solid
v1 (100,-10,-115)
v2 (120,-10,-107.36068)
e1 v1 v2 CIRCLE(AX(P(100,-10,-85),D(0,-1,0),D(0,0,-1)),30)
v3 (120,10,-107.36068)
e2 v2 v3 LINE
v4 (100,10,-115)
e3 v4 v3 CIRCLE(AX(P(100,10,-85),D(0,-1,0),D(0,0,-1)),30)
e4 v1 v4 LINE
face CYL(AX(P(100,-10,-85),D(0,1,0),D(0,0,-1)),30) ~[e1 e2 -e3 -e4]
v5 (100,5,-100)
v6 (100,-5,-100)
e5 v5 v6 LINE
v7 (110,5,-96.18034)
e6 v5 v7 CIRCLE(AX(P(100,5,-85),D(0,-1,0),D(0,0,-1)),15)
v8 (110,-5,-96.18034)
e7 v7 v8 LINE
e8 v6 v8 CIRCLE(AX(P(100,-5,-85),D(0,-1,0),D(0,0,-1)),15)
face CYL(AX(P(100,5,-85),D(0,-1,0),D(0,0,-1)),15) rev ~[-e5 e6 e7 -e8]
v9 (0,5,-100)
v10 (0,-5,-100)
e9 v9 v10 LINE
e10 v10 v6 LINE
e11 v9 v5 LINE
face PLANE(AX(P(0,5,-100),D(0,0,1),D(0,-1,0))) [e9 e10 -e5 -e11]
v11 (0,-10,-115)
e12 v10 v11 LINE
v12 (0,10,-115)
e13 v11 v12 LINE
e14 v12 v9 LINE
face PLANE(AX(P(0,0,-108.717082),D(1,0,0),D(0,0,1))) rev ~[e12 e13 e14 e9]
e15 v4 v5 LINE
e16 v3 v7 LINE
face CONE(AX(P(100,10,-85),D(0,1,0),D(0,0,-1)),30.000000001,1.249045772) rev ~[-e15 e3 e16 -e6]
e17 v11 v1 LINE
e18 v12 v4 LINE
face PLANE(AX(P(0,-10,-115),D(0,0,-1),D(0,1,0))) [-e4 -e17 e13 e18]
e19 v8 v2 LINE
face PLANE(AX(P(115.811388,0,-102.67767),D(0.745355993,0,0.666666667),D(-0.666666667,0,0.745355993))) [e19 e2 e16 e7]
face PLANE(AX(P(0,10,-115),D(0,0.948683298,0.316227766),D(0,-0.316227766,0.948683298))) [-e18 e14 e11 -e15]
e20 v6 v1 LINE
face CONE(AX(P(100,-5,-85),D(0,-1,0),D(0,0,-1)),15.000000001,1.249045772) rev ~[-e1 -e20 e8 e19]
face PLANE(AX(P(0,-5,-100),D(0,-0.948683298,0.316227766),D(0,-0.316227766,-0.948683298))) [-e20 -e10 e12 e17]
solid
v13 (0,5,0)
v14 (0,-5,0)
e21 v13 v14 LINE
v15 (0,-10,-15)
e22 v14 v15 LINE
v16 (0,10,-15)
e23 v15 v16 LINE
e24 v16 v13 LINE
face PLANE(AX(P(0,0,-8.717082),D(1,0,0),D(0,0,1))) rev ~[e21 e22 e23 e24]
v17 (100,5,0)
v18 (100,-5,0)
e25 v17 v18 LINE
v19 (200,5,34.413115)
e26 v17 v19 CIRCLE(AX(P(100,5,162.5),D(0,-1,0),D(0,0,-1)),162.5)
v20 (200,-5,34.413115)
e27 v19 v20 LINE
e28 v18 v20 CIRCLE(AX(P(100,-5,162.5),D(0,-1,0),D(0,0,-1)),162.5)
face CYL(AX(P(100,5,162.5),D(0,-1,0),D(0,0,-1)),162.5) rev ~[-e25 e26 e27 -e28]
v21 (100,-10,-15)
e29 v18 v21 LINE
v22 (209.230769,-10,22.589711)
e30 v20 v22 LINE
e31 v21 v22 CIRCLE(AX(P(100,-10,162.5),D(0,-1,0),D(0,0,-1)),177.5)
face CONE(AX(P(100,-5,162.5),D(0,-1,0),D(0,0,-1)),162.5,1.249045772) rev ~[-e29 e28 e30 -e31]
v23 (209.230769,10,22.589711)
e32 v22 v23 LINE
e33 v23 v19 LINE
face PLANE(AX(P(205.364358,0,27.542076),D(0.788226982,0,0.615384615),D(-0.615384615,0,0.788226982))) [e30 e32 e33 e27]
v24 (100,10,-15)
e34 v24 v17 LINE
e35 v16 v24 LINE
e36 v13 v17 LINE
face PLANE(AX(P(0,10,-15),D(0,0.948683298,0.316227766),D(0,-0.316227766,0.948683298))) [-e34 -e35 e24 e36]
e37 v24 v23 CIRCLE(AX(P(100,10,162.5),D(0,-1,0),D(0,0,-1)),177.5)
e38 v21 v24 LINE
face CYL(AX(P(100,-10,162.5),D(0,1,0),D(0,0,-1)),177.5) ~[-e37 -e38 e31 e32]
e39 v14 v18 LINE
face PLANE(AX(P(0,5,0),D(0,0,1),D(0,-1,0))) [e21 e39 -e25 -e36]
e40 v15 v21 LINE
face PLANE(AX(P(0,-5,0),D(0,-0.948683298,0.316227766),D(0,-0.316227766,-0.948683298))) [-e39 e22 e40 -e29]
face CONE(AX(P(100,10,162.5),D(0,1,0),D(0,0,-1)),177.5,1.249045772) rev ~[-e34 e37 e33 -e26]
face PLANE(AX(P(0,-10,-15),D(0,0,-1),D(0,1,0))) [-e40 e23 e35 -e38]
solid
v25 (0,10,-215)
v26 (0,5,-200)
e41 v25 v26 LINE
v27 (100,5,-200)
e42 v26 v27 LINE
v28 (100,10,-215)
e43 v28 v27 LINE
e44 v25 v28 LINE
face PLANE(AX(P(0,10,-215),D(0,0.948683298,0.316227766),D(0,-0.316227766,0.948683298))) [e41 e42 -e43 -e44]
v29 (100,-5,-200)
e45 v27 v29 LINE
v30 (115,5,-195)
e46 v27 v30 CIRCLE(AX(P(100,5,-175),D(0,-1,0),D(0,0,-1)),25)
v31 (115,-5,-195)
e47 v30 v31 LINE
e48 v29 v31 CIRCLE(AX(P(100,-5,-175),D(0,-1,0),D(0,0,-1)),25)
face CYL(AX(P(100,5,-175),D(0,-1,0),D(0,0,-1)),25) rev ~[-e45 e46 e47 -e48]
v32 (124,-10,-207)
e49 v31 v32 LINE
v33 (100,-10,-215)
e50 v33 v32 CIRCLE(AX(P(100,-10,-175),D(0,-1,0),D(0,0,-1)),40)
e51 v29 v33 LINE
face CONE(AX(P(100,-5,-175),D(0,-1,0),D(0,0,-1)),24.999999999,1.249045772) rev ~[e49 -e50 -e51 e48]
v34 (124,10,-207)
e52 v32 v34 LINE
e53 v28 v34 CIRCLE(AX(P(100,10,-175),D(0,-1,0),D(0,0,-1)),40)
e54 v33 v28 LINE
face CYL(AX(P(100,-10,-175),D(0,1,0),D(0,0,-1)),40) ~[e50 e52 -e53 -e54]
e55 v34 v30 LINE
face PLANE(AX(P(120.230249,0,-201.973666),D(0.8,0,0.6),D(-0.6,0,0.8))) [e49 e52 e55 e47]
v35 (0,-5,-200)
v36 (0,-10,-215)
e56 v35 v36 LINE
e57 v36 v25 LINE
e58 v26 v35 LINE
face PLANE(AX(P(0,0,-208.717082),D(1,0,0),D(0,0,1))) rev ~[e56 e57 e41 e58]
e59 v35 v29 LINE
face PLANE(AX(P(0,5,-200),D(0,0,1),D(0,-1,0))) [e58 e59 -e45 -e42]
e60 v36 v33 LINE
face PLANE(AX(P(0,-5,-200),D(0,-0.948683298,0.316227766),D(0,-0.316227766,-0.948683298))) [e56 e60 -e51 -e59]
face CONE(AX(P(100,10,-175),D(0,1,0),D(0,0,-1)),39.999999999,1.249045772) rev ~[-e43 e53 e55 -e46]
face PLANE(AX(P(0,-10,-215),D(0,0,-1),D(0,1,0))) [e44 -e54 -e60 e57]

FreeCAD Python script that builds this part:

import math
import FreeCAD as App
import Part
import Sketcher
Q = App.Units.Quantity


def add_polygon(sketch, points):
    """Adds a closed chain of lines whose ends are joined by coincident constraints."""
    first, n = sketch.GeometryCount, len(points)
    for a, b in zip(points, points[1:] + points[:1]):
        sketch.addGeometry(Part.LineSegment(App.Vector(*a, 0), App.Vector(*b, 0)), False)
    for i in range(n):
        sketch.addConstraint(Sketcher.Constraint("Coincident", first + i, 2, first + (i + 1) % n, 1))

doc = App.newDocument("Part")
body = doc.addObject("PartDesign::Body", "Body")

sketch1 = body.newObject("Sketcher::SketchObject", "Sketch")
sketch1.AttachmentSupport = (doc.getObject("YZ_Plane"), [""])
sketch1.MapMode = "FlatFace"
add_polygon(sketch1, [(5, -200), (-5, -200), (-10, -215), (10, -215)])
sketch1.addConstraint([
    Sketcher.Constraint("Horizontal", 0),
    Sketcher.Constraint("Horizontal", 2),
    Sketcher.Constraint("Equal", 1, 3),
    Sketcher.Constraint("DistanceX", 0, 2, 0, 1, Q("10 mm")),
    Sketcher.Constraint("DistanceX", 2, 1, 2, 2, Q("20 mm")),
    Sketcher.Constraint("DistanceX", 0, 2, -1, 1, Q("5 mm")),
    Sketcher.Constraint("DistanceY", 0, 2, -1, 1, Q("200 mm")),
    Sketcher.Constraint("DistanceY", 1, 2, -1, 1, Q("215 mm")),
])

sketch2 = body.newObject("Sketcher::SketchObject", "Sketch001")
sketch2.AttachmentSupport = (doc.getObject("XZ_Plane"), [""])
sketch2.MapMode = "FlatFace"
sketch2.addGeometry([
    Part.LineSegment(App.Vector(0, -200, 0), App.Vector(100, -200, 0)),
    Part.ArcOfCircle(Part.Circle(App.Vector(100, -175, 0), App.Vector(0, 0, 1), 25), math.radians(-90), math.radians(-53.130102)),
], False)
sketch2.addConstraint([
    Sketcher.Constraint("Tangent", 0, 2, 1, 1),
    Sketcher.Constraint("Horizontal", 0),
    Sketcher.Constraint("PointOnObject", 0, 1, -2),
    Sketcher.Constraint("Radius", 1, Q("25 mm")),
    Sketcher.Constraint("DistanceX", 0, 1, 0, 2, Q("100 mm")),
    Sketcher.Constraint("DistanceY", 1, 3, -1, 1, Q("175 mm")),
    Sketcher.Constraint("DistanceX", -1, 1, 1, 2, Q("115 mm")),
])
doc.recompute()

additivepipe = body.newObject("PartDesign::AdditivePipe", "AdditivePipe")
additivepipe.Profile = sketch1
additivepipe.Spine = (sketch2, ["Edge1", "Edge2"])
body2 = doc.addObject("PartDesign::Body", "Body001")

sketch3 = body2.newObject("Sketcher::SketchObject", "Sketch002")
sketch3.AttachmentSupport = (doc.getObject("YZ_Plane001"), [""])
sketch3.MapMode = "FlatFace"
add_polygon(sketch3, [(5, -100), (-5, -100), (-10, -115), (10, -115)])
sketch3.addConstraint([
    Sketcher.Constraint("Horizontal", 0),
    Sketcher.Constraint("Horizontal", 2),
    Sketcher.Constraint("Equal", 1, 3),
    Sketcher.Constraint("DistanceX", 0, 2, 0, 1, Q("10 mm")),
    Sketcher.Constraint("DistanceX", 2, 1, 2, 2, Q("20 mm")),
    Sketcher.Constraint("DistanceX", 0, 2, -1, 1, Q("5 mm")),
    Sketcher.Constraint("DistanceY", 0, 2, -1, 1, Q("100 mm")),
    Sketcher.Constraint("DistanceY", 1, 2, -1, 1, Q("115 mm")),
])

sketch4 = body2.newObject("Sketcher::SketchObject", "Sketch003")
sketch4.AttachmentSupport = (doc.getObject("XZ_Plane001"), [""])
sketch4.MapMode = "FlatFace"
sketch4.addGeometry([
    Part.LineSegment(App.Vector(0, -100, 0), App.Vector(100, -100, 0)),
    Part.ArcOfCircle(Part.Circle(App.Vector(100, -85, 0), App.Vector(0, 0, 1), 15), math.radians(-90), math.radians(-48.189685)),
], False)
sketch4.addConstraint([
    Sketcher.Constraint("Tangent", 0, 2, 1, 1),
    Sketcher.Constraint("Horizontal", 0),
    Sketcher.Constraint("PointOnObject", 0, 1, -2),
    Sketcher.Constraint("Radius", 1, Q("15 mm")),
    Sketcher.Constraint("DistanceX", 0, 1, 0, 2, Q("100 mm")),
    Sketcher.Constraint("DistanceY", 1, 3, -1, 1, Q("85 mm")),
    Sketcher.Constraint("DistanceX", -1, 1, 1, 2, Q("110 mm")),
])
doc.recompute()

additivepipe2 = body2.newObject("PartDesign::AdditivePipe", "AdditivePipe001")
additivepipe2.Profile = sketch3
additivepipe2.Spine = (sketch4, ["Edge1", "Edge2"])
body3 = doc.addObject("PartDesign::Body", "Body002")

sketch5 = body3.newObject("Sketcher::SketchObject", "Sketch004")
sketch5.AttachmentSupport = (doc.getObject("YZ_Plane002"), [""])
sketch5.MapMode = "FlatFace"
add_polygon(sketch5, [(-5, 0), (-10, -15), (10, -15), (5, 0)])
sketch5.addConstraint([
    Sketcher.Constraint("Horizontal", 1),
    Sketcher.Constraint("Horizontal", 3),
    Sketcher.Constraint("Symmetric", 2, 2, 3, 2, -1, 1),
    Sketcher.Constraint("Equal", 0, 2),
    Sketcher.Constraint("DistanceX", 1, 1, 1, 2, Q("20 mm")),
    Sketcher.Constraint("DistanceX", 3, 2, 3, 1, Q("10 mm")),
    Sketcher.Constraint("DistanceY", 0, 2, -1, 1, Q("15 mm")),
])

sketch6 = body3.newObject("Sketcher::SketchObject", "Sketch005")
sketch6.AttachmentSupport = (doc.getObject("XZ_Plane002"), [""])
sketch6.MapMode = "FlatFace"
sketch6.addGeometry([
    Part.LineSegment(App.Vector(0, 0, 0), App.Vector(100, 0, 0)),
    Part.ArcOfCircle(Part.Circle(App.Vector(100, 162.5, 0), App.Vector(0, 0, 1), 162.5), math.radians(-90), math.radians(-52.020128)),
], False)
sketch6.addConstraint([
    Sketcher.Constraint("Tangent", 0, 2, 1, 1),
    Sketcher.Constraint("Horizontal", 0),
    Sketcher.Constraint("Coincident", 0, 1, -1, 1),
    Sketcher.Constraint("Radius", 1, Q("162.5 mm")),
    Sketcher.Constraint("DistanceX", 0, 1, 0, 2, Q("100 mm")),
    Sketcher.Constraint("DistanceX", -1, 1, 1, 2, Q("200 mm")),
])
doc.recompute()

additivepipe3 = body3.newObject("PartDesign::AdditivePipe", "AdditivePipe002")
additivepipe3.Profile = sketch5
additivepipe3.Spine = (sketch6, ["Edge1", "Edge2"])

doc.recompute()
